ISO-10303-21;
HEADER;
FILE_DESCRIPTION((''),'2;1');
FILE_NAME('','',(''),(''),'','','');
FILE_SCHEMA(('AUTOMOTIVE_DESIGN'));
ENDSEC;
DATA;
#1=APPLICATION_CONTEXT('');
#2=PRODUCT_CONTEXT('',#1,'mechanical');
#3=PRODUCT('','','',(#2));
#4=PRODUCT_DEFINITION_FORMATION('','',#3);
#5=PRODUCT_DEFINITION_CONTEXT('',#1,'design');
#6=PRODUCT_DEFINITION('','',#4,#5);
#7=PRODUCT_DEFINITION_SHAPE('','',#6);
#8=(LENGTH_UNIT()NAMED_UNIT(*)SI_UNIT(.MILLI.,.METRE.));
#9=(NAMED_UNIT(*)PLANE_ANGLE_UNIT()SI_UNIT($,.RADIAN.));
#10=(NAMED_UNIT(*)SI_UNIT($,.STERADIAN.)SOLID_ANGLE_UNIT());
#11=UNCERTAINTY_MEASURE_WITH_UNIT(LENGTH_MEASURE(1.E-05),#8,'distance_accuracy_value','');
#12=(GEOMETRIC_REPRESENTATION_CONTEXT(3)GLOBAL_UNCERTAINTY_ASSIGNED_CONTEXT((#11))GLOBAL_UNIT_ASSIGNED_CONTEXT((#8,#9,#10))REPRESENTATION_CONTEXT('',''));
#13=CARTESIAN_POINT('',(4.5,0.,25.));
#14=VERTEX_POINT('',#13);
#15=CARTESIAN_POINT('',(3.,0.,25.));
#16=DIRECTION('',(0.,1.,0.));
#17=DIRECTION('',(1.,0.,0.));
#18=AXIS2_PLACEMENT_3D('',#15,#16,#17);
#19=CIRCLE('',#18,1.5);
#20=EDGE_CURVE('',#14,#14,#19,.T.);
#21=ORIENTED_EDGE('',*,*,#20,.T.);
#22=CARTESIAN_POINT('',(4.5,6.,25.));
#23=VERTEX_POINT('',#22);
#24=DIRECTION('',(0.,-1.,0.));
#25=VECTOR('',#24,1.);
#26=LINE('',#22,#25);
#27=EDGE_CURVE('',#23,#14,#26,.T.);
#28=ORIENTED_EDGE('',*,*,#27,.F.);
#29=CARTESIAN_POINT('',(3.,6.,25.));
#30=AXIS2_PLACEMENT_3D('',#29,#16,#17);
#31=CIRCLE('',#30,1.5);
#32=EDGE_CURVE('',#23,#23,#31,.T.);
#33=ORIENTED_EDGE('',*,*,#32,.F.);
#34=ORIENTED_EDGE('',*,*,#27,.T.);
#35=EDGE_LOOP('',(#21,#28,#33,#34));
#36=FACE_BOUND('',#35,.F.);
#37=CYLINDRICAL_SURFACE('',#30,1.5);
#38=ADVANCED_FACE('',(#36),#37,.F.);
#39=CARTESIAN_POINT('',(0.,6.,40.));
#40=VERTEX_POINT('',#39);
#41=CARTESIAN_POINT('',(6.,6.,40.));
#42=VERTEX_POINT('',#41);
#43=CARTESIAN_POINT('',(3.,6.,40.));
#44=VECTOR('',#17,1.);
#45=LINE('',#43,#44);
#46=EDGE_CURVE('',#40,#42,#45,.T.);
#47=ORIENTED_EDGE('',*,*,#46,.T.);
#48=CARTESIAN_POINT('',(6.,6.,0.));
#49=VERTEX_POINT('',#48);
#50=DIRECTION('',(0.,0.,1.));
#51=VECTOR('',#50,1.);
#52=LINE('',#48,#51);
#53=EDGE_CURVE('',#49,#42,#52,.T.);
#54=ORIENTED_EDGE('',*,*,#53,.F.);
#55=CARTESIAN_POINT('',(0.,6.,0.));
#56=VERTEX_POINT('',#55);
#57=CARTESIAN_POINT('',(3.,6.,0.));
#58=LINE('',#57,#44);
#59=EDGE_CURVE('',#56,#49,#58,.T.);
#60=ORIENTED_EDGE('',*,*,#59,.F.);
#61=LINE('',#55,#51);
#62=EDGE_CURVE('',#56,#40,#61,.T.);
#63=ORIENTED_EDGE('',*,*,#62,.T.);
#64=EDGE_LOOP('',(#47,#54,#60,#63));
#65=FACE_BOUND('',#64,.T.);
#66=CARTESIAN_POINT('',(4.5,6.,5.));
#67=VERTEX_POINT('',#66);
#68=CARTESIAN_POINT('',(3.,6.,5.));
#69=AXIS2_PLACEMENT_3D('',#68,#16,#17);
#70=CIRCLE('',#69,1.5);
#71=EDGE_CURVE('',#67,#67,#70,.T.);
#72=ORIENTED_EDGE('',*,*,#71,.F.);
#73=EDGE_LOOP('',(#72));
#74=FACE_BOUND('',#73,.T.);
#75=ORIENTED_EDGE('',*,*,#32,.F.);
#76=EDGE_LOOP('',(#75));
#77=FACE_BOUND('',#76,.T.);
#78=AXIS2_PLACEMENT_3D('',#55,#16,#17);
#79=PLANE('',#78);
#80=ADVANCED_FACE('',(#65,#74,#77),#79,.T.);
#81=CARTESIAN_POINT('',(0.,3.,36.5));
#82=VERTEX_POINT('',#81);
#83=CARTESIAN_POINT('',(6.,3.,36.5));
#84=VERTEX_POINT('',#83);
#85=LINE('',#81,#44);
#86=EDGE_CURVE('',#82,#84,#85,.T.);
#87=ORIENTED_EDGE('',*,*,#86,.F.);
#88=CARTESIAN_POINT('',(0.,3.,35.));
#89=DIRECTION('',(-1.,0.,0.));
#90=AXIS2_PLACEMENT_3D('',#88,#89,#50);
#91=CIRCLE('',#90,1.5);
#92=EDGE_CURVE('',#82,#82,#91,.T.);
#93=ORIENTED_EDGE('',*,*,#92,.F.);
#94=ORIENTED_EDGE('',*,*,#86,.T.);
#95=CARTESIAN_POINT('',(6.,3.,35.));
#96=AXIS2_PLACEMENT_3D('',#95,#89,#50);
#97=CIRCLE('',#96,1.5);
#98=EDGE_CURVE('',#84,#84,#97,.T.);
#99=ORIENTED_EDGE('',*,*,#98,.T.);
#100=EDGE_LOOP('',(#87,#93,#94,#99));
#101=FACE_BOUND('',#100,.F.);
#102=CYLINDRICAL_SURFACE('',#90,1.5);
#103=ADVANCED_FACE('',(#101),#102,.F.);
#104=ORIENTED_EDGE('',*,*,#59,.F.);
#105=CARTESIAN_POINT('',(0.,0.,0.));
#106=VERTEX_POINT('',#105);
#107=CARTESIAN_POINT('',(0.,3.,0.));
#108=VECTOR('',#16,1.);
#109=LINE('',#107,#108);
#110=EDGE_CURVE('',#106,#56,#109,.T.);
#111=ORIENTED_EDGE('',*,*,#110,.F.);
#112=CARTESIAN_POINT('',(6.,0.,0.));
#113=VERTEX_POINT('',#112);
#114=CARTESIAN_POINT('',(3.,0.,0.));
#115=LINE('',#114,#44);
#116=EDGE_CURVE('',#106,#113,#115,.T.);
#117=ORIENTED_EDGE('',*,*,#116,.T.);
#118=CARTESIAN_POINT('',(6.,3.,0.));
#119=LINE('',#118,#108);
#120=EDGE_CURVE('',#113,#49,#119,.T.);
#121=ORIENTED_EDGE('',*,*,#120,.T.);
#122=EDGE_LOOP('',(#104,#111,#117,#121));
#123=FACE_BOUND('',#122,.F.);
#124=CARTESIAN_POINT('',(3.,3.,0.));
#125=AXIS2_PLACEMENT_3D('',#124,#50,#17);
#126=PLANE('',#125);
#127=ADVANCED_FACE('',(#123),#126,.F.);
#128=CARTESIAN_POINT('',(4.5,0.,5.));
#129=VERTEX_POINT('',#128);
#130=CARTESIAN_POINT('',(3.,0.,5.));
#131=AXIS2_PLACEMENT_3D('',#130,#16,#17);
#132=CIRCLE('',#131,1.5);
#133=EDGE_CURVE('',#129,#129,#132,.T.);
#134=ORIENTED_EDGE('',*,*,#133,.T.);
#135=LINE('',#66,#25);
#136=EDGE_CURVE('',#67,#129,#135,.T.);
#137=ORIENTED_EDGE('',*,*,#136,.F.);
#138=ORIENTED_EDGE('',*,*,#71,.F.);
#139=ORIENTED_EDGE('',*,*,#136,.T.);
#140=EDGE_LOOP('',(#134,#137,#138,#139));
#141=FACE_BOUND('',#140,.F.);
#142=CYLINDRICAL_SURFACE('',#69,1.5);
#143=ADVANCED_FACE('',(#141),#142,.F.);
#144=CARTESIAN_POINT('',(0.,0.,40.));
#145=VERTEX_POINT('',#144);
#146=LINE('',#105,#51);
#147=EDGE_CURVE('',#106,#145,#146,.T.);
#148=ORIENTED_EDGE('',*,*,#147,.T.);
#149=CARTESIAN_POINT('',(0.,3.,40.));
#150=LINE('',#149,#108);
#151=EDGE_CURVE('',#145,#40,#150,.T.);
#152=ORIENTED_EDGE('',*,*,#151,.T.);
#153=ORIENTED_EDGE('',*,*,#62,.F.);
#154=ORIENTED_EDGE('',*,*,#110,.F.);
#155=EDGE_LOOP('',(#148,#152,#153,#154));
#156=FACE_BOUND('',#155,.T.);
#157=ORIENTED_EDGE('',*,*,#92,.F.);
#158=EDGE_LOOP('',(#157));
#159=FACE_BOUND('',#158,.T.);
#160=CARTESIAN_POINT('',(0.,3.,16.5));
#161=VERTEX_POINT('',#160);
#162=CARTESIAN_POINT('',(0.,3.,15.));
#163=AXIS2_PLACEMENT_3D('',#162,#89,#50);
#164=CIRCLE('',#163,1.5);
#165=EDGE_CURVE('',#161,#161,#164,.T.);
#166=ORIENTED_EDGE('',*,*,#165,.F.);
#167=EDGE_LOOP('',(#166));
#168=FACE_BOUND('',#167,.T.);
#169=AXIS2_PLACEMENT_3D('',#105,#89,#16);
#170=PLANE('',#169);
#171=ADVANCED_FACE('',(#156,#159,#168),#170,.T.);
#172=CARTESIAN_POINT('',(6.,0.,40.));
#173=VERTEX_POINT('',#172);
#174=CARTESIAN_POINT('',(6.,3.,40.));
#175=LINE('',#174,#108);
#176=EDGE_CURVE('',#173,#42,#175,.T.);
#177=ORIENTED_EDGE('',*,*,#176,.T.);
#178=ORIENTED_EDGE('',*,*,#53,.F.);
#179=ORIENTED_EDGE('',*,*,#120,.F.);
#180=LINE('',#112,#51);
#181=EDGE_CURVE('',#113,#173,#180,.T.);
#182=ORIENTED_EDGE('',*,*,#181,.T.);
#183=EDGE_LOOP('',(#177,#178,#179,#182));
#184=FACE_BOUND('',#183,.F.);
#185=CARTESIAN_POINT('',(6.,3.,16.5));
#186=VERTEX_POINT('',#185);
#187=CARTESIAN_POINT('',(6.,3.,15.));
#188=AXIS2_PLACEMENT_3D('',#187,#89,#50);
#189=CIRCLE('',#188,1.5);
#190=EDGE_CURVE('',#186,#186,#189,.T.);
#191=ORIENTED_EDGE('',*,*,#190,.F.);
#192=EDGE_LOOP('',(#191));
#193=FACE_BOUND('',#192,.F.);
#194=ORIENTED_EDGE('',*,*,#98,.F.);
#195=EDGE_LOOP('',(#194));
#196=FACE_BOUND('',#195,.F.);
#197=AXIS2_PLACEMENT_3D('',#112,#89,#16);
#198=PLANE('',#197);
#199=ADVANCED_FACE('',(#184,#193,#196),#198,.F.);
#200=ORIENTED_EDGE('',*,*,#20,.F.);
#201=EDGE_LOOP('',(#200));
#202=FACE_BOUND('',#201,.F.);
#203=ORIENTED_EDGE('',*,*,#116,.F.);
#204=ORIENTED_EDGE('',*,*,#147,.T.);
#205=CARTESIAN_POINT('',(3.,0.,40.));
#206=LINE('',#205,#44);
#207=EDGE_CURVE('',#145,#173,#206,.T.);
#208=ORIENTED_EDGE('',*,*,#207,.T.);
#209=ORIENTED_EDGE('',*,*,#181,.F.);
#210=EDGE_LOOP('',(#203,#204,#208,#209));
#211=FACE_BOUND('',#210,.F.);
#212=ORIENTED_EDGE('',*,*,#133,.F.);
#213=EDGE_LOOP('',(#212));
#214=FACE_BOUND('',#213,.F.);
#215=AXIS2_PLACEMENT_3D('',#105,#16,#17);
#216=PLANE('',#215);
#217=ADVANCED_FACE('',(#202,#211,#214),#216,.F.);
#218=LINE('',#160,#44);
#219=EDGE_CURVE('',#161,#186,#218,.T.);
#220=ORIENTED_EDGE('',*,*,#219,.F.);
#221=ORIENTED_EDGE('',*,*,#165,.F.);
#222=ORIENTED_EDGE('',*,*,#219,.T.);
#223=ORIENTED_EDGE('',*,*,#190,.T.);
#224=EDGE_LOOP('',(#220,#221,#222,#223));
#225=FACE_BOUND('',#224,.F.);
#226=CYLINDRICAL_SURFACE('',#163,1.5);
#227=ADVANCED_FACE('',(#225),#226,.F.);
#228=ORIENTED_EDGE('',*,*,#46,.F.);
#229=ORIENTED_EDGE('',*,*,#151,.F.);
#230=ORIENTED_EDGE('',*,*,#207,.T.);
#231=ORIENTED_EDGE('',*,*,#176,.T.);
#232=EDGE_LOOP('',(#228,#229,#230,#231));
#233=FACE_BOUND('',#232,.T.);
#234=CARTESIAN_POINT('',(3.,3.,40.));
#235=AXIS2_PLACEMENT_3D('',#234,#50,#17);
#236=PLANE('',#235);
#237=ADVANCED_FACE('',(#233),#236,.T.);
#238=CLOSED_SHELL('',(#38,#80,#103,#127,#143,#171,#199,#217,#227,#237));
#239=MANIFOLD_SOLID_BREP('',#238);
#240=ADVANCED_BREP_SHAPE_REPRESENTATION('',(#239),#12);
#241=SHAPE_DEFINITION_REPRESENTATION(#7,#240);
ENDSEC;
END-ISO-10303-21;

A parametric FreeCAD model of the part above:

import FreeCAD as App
import Part
import Sketcher

V = App.Vector


def add_polygon(sketch, points):
    """Adds a closed chain of lines whose ends are joined by coincident constraints."""
    first, n = sketch.GeometryCount, len(points)
    for a, b in zip(points, points[1:] + points[:1]):
        sketch.addGeometry(Part.LineSegment(App.Vector(*a, 0), App.Vector(*b, 0)), False)
    for i in range(n):
        sketch.addConstraint(Sketcher.Constraint("Coincident", first + i, 2, first + (i + 1) % n, 1))

doc = App.newDocument("Part")
body = doc.addObject("PartDesign::Body", "Body")

sketch1 = body.newObject("Sketcher::SketchObject", "Sketch")
sketch1.AttachmentSupport = (doc.getObject("XY_Plane"), [""])
sketch1.MapMode = "FlatFace"
add_polygon(sketch1, [(0, 6), (0, 0), (6, 0), (6, 6)])
sketch1.addConstraint([
    Sketcher.Constraint("Vertical", 0),
    Sketcher.Constraint("Horizontal", 1),
    Sketcher.Constraint("Vertical", 2),
    Sketcher.Constraint("Horizontal", 3),
    Sketcher.Constraint("Coincident", 0, 2, -1, 1),
    Sketcher.Constraint("Equal", 3, 0),
    Sketcher.Constraint("DistanceX", 1, 1, 1, 2, 6.0),
])
pad1 = body.newObject("PartDesign::Pad", "Pad")
pad1.Profile = sketch1
pad1.Length = 40

sketch2 = body.newObject("Sketcher::SketchObject", "Sketch001")
sketch2.AttachmentSupport = (doc.getObject("XZ_Plane"), [""])
sketch2.MapMode = "FlatFace"
sketch2.AttachmentOffset = App.Placement(V(0, 0, -6), App.Rotation())
sketch2.addGeometry([
    Part.Circle(V(3, 5, 0), V(0, 0, 1), 1.5),
    Part.Circle(V(3, 25, 0), V(0, 0, 1), 1.5),
], False)
sketch2.addConstraint([
    Sketcher.Constraint("Equal", 0, 1),
    Sketcher.Constraint("Vertical", 0, 3, 1, 3),
    Sketcher.Constraint("Diameter", 0, 3.0),
    Sketcher.Constraint("DistanceX", -1, 1, 0, 3, 3.0),
    Sketcher.Constraint("DistanceY", -1, 1, 0, 3, 5.0),
    Sketcher.Constraint("DistanceY", -1, 1, 1, 3, 25.0),
])
pocket1 = body.newObject("PartDesign::Pocket", "Pocket")
pocket1.Profile = sketch2
pocket1.Length = 50
pocket1.Reversed = True

sketch3 = body.newObject("Sketcher::SketchObject", "Sketch002")
sketch3.AttachmentSupport = (doc.getObject("YZ_Plane"), [""])
sketch3.MapMode = "FlatFace"
sketch3.addGeometry([
    Part.Circle(V(3, 35, 0), V(0, 0, 1), 1.5),
    Part.Circle(V(3, 15, 0), V(0, 0, 1), 1.5),
], False)
sketch3.addConstraint([
    Sketcher.Constraint("Equal", 0, 1),
    Sketcher.Constraint("Vertical", 0, 3, 1, 3),
    Sketcher.Constraint("Diameter", 0, 3.0),
    Sketcher.Constraint("DistanceX", -1, 1, 0, 3, 3.0),
    Sketcher.Constraint("DistanceY", -1, 1, 0, 3, 35.0),
    Sketcher.Constraint("DistanceY", -1, 1, 1, 3, 15.0),
])
pocket2 = body.newObject("PartDesign::Pocket", "Pocket001")
pocket2.Profile = sketch3
pocket2.Length = 50
pocket2.Reversed = True

doc.recompute()
